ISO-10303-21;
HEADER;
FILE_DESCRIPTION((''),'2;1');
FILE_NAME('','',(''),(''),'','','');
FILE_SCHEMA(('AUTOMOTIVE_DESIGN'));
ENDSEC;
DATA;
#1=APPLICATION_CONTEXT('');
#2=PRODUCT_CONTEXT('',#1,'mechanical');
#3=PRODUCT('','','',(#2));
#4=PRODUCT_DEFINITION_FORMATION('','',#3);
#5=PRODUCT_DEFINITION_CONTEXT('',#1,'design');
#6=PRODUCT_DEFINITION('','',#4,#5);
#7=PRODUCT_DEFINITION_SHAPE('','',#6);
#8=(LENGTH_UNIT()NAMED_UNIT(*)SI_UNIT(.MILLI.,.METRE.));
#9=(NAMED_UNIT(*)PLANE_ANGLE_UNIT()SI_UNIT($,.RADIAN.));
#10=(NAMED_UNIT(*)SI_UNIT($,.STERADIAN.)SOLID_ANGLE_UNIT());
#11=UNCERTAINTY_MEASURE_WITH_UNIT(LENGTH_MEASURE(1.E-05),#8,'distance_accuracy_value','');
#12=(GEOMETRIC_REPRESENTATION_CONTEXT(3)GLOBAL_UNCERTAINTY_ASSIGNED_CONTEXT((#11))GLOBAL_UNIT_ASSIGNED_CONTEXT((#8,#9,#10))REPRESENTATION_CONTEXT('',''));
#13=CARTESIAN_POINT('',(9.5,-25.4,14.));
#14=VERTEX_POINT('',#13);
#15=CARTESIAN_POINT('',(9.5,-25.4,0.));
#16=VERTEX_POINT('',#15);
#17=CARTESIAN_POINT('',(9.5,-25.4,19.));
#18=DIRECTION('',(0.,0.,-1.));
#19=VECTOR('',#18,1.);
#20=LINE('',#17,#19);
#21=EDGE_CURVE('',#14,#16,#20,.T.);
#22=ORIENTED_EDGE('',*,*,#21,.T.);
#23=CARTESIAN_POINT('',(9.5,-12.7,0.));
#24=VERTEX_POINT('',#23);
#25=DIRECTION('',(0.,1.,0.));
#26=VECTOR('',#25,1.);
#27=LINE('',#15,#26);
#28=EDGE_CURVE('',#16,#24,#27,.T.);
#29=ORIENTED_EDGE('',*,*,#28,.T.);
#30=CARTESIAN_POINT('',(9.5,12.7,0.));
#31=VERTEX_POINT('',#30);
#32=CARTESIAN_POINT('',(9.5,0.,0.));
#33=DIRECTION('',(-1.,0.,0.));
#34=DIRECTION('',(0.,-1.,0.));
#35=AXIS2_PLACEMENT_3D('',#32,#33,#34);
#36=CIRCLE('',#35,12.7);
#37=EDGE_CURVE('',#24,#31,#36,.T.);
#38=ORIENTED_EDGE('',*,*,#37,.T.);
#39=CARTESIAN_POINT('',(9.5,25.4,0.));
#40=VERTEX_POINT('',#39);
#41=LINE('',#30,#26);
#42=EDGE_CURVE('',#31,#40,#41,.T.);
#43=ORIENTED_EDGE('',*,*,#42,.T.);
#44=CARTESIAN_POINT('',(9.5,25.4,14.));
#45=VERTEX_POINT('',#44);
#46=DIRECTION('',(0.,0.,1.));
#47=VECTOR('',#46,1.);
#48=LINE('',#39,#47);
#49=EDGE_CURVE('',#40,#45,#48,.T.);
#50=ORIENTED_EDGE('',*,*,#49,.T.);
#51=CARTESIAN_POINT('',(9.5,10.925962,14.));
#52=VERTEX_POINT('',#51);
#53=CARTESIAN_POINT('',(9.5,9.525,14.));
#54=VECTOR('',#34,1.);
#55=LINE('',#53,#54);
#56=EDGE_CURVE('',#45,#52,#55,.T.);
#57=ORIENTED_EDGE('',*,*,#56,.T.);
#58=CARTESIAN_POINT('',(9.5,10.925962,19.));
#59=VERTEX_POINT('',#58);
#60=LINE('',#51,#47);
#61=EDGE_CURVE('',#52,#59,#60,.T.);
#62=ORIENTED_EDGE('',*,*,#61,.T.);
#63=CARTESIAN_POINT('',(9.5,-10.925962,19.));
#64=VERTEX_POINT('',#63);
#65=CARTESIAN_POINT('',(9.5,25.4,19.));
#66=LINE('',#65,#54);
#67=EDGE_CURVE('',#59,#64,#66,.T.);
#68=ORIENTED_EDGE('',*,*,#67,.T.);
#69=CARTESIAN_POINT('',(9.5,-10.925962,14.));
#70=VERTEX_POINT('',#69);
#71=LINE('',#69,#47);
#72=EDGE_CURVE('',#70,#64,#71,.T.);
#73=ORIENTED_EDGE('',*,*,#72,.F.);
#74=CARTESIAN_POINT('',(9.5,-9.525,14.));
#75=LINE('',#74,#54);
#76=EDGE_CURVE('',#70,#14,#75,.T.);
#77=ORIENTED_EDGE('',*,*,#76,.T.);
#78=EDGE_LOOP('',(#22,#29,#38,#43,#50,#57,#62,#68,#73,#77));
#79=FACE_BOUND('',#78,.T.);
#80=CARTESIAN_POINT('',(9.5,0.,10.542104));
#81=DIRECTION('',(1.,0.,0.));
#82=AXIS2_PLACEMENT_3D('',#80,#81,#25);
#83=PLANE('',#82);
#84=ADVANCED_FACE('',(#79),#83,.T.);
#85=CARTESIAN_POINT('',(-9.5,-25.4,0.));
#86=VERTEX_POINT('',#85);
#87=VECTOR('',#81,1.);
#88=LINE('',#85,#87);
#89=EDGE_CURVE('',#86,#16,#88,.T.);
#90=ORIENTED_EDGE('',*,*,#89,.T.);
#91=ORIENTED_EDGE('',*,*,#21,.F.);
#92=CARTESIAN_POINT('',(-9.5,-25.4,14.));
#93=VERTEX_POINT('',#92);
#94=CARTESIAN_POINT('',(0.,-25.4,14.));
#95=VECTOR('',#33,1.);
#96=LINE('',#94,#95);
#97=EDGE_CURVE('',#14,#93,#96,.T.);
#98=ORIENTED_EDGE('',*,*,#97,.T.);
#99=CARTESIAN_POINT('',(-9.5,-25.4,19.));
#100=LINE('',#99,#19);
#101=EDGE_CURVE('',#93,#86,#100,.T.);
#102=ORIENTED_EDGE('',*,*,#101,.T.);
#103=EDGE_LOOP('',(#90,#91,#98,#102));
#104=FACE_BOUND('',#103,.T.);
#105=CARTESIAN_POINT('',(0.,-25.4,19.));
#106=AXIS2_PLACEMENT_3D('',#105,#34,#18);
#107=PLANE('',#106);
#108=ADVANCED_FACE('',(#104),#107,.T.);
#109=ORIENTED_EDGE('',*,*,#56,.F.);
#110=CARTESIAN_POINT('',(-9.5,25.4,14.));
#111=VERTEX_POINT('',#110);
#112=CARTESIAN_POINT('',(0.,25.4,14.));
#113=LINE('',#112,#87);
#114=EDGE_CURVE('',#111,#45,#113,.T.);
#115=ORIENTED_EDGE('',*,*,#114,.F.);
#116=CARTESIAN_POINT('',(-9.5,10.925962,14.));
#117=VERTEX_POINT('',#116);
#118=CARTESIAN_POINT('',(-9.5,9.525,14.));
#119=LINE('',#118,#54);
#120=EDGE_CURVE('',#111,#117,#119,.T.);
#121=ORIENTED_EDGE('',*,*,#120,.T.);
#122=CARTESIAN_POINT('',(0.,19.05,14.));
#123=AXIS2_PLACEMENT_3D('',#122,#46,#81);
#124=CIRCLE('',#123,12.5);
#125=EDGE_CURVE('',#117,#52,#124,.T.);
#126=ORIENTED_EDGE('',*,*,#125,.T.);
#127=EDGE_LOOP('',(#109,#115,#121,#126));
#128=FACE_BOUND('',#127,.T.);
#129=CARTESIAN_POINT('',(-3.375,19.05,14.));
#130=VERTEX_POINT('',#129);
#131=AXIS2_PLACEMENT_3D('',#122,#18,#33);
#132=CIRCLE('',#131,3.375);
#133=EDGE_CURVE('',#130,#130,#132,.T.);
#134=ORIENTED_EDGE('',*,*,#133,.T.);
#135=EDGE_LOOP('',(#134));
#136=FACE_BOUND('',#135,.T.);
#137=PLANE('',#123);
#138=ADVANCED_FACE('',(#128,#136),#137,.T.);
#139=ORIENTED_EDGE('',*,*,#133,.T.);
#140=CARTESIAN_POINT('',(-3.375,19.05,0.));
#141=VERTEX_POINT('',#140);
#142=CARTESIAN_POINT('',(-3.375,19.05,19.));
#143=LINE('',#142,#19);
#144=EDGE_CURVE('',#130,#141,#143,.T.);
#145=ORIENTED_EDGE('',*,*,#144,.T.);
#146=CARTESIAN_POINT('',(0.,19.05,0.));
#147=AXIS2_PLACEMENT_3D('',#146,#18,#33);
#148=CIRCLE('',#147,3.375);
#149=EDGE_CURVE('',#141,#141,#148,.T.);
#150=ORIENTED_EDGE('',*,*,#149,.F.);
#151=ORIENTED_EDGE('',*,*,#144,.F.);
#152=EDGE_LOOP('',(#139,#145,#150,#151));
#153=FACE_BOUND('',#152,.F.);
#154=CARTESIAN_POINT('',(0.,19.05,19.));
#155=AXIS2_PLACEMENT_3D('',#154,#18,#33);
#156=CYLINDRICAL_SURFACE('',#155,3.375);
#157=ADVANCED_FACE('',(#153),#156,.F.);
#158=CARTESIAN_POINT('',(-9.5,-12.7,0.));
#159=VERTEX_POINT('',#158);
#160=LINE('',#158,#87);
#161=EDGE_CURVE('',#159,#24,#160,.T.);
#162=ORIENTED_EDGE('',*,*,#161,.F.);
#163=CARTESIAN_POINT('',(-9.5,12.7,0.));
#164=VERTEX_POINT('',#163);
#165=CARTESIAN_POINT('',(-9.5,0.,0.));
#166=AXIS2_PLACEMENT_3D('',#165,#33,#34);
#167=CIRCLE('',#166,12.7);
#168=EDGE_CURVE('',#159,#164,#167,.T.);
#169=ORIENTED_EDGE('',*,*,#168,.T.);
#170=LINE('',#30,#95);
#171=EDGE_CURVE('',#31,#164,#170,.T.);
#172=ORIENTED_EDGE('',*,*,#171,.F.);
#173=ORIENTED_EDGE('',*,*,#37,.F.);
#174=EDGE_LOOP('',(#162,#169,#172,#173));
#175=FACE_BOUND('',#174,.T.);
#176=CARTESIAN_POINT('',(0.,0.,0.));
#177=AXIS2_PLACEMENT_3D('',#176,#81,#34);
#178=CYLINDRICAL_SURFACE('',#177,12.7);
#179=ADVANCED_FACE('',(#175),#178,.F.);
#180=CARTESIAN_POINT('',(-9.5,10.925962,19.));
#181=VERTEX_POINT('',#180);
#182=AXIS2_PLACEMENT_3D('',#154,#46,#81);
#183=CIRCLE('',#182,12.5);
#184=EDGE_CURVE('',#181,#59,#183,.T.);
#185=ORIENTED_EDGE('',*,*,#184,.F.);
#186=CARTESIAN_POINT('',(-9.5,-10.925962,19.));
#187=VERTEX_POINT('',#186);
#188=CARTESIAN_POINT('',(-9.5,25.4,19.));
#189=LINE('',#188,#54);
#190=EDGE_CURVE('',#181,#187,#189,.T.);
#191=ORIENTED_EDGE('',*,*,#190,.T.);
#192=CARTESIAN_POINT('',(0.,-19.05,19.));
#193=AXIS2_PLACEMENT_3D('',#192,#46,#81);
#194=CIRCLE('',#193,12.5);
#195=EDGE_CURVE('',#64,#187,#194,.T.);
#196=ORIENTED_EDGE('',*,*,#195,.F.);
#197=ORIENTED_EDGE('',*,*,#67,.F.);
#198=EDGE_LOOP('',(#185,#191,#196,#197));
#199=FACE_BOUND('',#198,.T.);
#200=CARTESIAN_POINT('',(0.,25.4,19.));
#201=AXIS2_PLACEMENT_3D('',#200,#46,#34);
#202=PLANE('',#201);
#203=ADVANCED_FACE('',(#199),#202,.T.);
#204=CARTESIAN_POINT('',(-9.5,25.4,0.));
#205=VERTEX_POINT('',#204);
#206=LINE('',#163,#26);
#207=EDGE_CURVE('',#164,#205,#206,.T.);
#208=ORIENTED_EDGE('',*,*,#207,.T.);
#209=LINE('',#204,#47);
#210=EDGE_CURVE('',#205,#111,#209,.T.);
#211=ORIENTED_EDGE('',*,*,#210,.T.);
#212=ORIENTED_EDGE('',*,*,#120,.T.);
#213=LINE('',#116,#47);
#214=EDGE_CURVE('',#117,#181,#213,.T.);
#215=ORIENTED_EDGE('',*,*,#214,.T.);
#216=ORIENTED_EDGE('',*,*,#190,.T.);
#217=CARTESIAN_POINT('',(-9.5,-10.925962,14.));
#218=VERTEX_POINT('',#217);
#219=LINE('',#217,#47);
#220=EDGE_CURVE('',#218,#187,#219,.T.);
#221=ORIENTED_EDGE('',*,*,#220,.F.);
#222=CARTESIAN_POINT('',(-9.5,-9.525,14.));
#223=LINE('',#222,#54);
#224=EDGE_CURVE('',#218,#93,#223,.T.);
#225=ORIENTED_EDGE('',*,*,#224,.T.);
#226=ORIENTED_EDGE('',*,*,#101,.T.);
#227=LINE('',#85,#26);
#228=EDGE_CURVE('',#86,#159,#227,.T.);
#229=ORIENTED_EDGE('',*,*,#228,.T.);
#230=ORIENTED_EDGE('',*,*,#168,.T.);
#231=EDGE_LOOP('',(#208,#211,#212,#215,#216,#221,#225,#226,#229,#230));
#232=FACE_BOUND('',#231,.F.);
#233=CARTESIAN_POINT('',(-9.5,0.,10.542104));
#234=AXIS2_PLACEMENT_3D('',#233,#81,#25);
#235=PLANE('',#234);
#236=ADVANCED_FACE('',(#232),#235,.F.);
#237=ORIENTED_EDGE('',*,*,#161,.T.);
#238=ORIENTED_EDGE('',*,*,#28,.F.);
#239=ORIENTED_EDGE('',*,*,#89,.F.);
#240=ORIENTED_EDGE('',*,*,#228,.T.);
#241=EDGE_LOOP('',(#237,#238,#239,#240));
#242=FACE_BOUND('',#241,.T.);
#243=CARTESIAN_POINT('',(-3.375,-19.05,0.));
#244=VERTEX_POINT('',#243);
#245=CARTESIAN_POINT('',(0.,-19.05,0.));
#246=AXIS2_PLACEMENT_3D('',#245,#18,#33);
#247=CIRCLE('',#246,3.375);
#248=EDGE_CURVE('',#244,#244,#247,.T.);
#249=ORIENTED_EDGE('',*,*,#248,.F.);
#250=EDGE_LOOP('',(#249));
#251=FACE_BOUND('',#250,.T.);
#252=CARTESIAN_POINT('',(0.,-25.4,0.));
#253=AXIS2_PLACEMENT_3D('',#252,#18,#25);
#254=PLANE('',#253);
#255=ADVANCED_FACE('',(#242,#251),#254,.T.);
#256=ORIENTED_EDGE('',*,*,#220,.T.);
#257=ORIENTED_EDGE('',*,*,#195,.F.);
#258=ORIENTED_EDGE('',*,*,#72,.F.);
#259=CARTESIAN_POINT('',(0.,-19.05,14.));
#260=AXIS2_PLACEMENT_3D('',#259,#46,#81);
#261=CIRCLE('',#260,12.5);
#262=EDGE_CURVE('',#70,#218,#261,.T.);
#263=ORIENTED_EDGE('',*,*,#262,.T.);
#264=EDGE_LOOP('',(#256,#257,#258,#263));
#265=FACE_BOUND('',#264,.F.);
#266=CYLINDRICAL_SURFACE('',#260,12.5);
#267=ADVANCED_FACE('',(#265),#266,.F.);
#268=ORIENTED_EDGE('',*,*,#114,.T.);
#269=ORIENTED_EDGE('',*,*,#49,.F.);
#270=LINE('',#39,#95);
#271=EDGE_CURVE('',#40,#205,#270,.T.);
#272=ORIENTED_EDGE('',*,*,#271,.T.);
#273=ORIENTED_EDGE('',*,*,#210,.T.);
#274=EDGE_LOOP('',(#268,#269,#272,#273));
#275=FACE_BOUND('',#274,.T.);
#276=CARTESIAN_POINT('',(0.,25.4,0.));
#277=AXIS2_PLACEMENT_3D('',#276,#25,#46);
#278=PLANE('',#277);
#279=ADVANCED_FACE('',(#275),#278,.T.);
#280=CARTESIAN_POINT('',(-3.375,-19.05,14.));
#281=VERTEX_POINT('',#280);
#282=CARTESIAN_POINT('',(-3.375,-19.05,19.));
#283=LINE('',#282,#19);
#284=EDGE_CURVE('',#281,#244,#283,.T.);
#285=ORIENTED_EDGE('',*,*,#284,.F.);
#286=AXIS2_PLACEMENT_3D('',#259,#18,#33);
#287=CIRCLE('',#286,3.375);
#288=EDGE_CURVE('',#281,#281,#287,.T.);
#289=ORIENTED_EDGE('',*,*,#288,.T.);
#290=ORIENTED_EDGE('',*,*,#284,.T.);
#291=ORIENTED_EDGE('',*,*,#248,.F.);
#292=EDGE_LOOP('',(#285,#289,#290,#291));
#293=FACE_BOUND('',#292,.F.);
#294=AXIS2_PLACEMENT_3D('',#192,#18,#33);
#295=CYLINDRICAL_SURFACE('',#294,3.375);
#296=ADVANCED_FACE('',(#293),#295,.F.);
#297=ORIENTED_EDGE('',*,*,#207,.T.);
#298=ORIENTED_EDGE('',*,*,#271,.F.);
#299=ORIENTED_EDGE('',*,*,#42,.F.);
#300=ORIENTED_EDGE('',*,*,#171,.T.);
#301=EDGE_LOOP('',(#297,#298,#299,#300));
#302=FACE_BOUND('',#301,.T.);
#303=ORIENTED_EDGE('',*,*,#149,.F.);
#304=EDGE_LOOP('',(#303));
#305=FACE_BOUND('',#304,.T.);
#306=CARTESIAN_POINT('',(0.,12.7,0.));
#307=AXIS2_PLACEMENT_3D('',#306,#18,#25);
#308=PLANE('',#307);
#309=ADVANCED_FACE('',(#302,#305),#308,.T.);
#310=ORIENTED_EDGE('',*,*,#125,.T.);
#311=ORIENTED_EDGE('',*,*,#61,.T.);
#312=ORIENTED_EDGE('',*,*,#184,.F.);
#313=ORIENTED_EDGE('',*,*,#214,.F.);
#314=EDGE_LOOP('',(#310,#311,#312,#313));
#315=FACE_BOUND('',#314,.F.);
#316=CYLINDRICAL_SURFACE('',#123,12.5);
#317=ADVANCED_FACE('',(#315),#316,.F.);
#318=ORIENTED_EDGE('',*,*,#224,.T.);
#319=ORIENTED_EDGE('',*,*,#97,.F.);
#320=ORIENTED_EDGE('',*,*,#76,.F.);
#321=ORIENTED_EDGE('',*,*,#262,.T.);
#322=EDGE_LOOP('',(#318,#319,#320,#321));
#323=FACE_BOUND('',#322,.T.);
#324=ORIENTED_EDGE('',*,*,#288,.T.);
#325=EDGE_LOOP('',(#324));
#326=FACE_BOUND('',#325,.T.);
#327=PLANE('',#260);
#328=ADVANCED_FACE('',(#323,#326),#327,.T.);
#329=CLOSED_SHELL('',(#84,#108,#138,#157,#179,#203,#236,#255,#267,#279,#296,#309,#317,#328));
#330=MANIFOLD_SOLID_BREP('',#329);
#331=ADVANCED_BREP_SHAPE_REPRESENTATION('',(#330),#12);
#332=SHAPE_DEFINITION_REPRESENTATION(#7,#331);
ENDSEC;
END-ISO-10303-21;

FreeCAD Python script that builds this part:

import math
import FreeCAD as App
import Part
import Sketcher
from FreeCAD import Vector
Q = App.Units.Quantity

doc = App.newDocument("Part")
body = doc.addObject("PartDesign::Body", "Body")

sketch1 = body.newObject("Sketcher::SketchObject", "Sketch")
sketch1.AttachmentSupport = (doc.getObject("YZ_Plane"), [""])
sketch1.MapMode = "FlatFace"
sketch1.addGeometry([
    Part.LineSegment(Vector(25.4, 19, 0), Vector(-25.4, 19, 0)),
    Part.LineSegment(Vector(-25.4, 19, 0), Vector(-25.4, 0, 0)),
    Part.LineSegment(Vector(-25.4, 0, 0), Vector(-12.7, 0, 0)),
    Part.ArcOfCircle(Part.Circle(Vector(0, 0, 0), Vector(0, 0, 1), 12.7), math.radians(0), math.radians(180)),
    Part.LineSegment(Vector(12.7, 0, 0), Vector(25.4, 0, 0)),
    Part.LineSegment(Vector(25.4, 0, 0), Vector(25.4, 19, 0)),
], False)
sketch1.addConstraint([
    Sketcher.Constraint("Coincident", 0, 2, 1, 1),
    Sketcher.Constraint("Coincident", 1, 2, 2, 1),
    Sketcher.Constraint("Coincident", 2, 2, 3, 2),
    Sketcher.Constraint("Coincident", 3, 1, 4, 1),
    Sketcher.Constraint("Coincident", 4, 2, 5, 1),
    Sketcher.Constraint("Coincident", 5, 2, 0, 1),
    Sketcher.Constraint("Horizontal", 0),
    Sketcher.Constraint("Vertical", 1),
    Sketcher.Constraint("Horizontal", 2),
    Sketcher.Constraint("Horizontal", 4),
    Sketcher.Constraint("Vertical", 5),
    Sketcher.Constraint("Coincident", 3, 3, -1, 1),
    Sketcher.Constraint("Symmetric", 1, 2, 4, 2, -1, 1),
    Sketcher.Constraint("PointOnObject", 1, 2, -1),
    Sketcher.Constraint("Radius", 3, Q("0.5 in")),
    Sketcher.Constraint("DistanceX", 0, 2, 0, 1, Q("2 in")),
    Sketcher.Constraint("DistanceY", 1, 2, 1, 1, Q("19 mm")),
])
pad1 = body.newObject("PartDesign::Pad", "Pad")
pad1.Profile = sketch1
pad1.Length = 19
pad1.Midplane = True

sketch2 = body.newObject("Sketcher::SketchObject", "Sketch001")
sketch2.AttachmentSupport = (doc.getObject("XY_Plane"), [""])
sketch2.MapMode = "FlatFace"
sketch2.AttachmentOffset = App.Placement(Vector(0, 0, 19), App.Rotation())
sketch2.addGeometry([
    Part.Circle(Vector(0, 19.05, 0), Vector(0, 0, 1), 3.375),
    Part.Circle(Vector(0, -19.05, 0), Vector(0, 0, 1), 3.375),
], False)
sketch2.addConstraint([
    Sketcher.Constraint("Equal", 0, 1),
    Sketcher.Constraint("Symmetric", 0, 3, 1, 3, -1, 1),
    Sketcher.Constraint("PointOnObject", 0, 3, -2),
    Sketcher.Constraint("DistanceY", 1, 3, 0, 3, Q("1.5 in")),
    Sketcher.Constraint("Diameter", 0, Q("6.75 mm")),
])
doc.recompute()
hole = body.newObject("PartDesign::Hole", "Hole")
hole.Profile = sketch2
hole.ThreadType = "None"
hole.Diameter = 6.75
hole.DepthType = "ThroughAll"
hole.HoleCutType = "Counterbore"
hole.HoleCutDiameter = 25
hole.HoleCutDepth = 5

doc.recompute()
